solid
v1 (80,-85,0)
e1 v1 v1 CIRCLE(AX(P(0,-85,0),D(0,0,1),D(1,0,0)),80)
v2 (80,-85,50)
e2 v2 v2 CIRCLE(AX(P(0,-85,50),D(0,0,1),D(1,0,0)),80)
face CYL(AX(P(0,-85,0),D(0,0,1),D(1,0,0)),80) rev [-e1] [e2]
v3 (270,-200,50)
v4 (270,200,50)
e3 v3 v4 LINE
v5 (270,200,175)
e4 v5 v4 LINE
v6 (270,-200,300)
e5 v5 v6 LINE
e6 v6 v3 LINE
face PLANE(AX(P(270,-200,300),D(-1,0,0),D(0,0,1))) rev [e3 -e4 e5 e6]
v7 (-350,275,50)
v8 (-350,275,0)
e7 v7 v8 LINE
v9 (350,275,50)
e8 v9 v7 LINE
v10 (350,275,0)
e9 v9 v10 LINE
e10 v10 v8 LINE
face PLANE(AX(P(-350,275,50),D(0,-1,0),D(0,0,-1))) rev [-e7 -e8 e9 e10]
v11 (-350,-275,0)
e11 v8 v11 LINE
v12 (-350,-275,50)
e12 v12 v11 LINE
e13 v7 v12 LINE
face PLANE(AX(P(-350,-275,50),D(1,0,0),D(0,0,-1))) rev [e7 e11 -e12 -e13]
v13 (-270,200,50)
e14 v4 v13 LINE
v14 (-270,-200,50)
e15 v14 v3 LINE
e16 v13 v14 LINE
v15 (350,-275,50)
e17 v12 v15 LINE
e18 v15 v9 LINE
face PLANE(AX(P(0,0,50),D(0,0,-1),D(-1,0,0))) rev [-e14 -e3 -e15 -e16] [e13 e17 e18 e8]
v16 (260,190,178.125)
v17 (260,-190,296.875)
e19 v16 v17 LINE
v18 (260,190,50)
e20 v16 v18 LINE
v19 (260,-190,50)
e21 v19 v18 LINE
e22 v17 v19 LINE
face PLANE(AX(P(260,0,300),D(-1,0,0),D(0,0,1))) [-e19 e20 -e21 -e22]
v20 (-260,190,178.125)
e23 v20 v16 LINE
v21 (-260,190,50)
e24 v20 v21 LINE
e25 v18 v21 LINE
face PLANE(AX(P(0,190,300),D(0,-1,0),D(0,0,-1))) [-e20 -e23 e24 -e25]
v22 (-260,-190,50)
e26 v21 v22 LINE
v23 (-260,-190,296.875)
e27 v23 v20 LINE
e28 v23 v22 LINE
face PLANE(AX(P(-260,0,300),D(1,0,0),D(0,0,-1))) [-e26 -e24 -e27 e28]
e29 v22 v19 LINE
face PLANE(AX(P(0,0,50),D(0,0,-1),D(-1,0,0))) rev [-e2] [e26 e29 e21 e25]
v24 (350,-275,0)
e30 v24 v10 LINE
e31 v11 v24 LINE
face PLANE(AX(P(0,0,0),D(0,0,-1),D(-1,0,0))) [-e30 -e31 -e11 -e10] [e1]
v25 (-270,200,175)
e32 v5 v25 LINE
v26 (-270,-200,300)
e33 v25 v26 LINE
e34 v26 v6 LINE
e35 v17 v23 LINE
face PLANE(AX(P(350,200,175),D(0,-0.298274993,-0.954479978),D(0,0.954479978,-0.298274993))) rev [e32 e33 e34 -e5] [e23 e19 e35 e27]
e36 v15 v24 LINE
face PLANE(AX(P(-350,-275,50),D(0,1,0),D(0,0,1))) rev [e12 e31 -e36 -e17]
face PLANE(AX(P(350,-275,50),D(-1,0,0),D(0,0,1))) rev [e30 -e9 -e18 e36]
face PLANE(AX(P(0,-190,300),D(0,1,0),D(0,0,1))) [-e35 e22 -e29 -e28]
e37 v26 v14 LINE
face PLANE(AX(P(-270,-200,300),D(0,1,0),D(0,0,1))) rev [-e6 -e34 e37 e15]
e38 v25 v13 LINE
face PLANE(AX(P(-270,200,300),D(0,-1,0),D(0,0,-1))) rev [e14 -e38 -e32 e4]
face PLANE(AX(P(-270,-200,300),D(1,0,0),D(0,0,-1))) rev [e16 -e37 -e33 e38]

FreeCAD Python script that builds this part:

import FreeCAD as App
import Part
import Sketcher

V = App.Vector

doc = App.newDocument("Part")
body = doc.addObject("PartDesign::Body", "Body")

# Sketch on XY plane
sketch1 = body.newObject("Sketcher::SketchObject", "Sketch")
sketch1.AttachmentSupport = (doc.getObject("XY_Plane"), [""])
sketch1.MapMode = "FlatFace"
sketch1.addGeometry([
    Part.LineSegment(V(-350, 275, 0), V(-350, -275, 0)),
    Part.LineSegment(V(-350, -275, 0), V(350, -275, 0)),
    Part.LineSegment(V(350, -275, 0), V(350, 275, 0)),
    Part.LineSegment(V(350, 275, 0), V(-350, 275, 0)),
], False)
sketch1.addConstraint([
    Sketcher.Constraint("Coincident", 0, 2, 1, 1),
    Sketcher.Constraint("Coincident", 1, 2, 2, 1),
    Sketcher.Constraint("Coincident", 2, 2, 3, 1),
    Sketcher.Constraint("Coincident", 3, 2, 0, 1),
    Sketcher.Constraint("Vertical", 0),
    Sketcher.Constraint("Horizontal", 1),
    Sketcher.Constraint("Vertical", 2),
    Sketcher.Constraint("Horizontal", 3),
    Sketcher.Constraint("Symmetric", 0, 2, 2, 2, -1, 1),
    Sketcher.Constraint("DistanceX", 1, 1, 1, 2, 700.0),
    Sketcher.Constraint("DistanceY", 0, 2, 0, 1, 550.0),
])
pad1 = body.newObject("PartDesign::Pad", "Pad")
pad1.Profile = sketch1
pad1.Length = 50

# Sketch on XY plane
sketch2 = body.newObject("Sketcher::SketchObject", "Sketch001")
sketch2.AttachmentSupport = (doc.getObject("XY_Plane"), [""])
sketch2.MapMode = "FlatFace"
sketch2.AttachmentOffset = App.Placement(V(0, 0, 50), App.Rotation())
sketch2.addGeometry([
    Part.LineSegment(V(-270, 200, 0), V(-270, -200, 0)),  # 0
    Part.LineSegment(V(-270, -200, 0), V(270, -200, 0)),  # 1
    Part.LineSegment(V(270, -200, 0), V(270, 200, 0)),  # 2
    Part.LineSegment(V(270, 200, 0), V(-270, 200, 0)),  # 3
    Part.LineSegment(V(260, -190, 0), V(-260, -190, 0)),  # 4
    Part.LineSegment(V(-260, -190, 0), V(-260, 190, 0)),  # 5
    Part.LineSegment(V(-260, 190, 0), V(260, 190, 0)),  # 6
    Part.LineSegment(V(260, 190, 0), V(260, -190, 0)),  # 7
], False)
sketch2.addConstraint([
    Sketcher.Constraint("Coincident", 0, 2, 1, 1),
    Sketcher.Constraint("Coincident", 1, 2, 2, 1),
    Sketcher.Constraint("Coincident", 2, 2, 3, 1),
    Sketcher.Constraint("Coincident", 3, 2, 0, 1),
    Sketcher.Constraint("Coincident", 4, 2, 5, 1),
    Sketcher.Constraint("Coincident", 5, 2, 6, 1),
    Sketcher.Constraint("Coincident", 6, 2, 7, 1),
    Sketcher.Constraint("Coincident", 7, 2, 4, 1),
    Sketcher.Constraint("Vertical", 0),
    Sketcher.Constraint("Horizontal", 1),
    Sketcher.Constraint("Vertical", 2),
    Sketcher.Constraint("Horizontal", 3),
    Sketcher.Constraint("Horizontal", 4),
    Sketcher.Constraint("Vertical", 5),
    Sketcher.Constraint("Horizontal", 6),
    Sketcher.Constraint("Vertical", 7),
    Sketcher.Constraint("Symmetric", 0, 2, 2, 2, -1, 1),
    Sketcher.Constraint("Symmetric", 4, 2, 6, 2, -1, 1),
    Sketcher.Constraint("DistanceX", 1, 1, 1, 2, 540.0),
    Sketcher.Constraint("DistanceX", 4, 2, 4, 1, 520.0),
    Sketcher.Constraint("DistanceY", 0, 2, 0, 1, 400.0),
    Sketcher.Constraint("DistanceY", 5, 1, 5, 2, 380.0),
])
pad2 = body.newObject("PartDesign::Pad", "Pad001")
pad2.Profile = sketch2
pad2.Length = 250

# Sketch on YZ plane
sketch3 = body.newObject("Sketcher::SketchObject", "Sketch002")
sketch3.AttachmentSupport = (doc.getObject("YZ_Plane"), [""])
sketch3.MapMode = "FlatFace"
sketch3.AttachmentOffset = App.Placement(V(0, 0, -270), App.Rotation())
sketch3.addGeometry([
    Part.LineSegment(V(200, 175, 0), V(-200, 300, 0)),
    Part.LineSegment(V(-200, 300, 0), V(200, 300, 0)),
    Part.LineSegment(V(200, 300, 0), V(200, 175, 0)),
], False)
sketch3.addConstraint([
    Sketcher.Constraint("Coincident", 0, 2, 1, 1),
    Sketcher.Constraint("Coincident", 1, 2, 2, 1),
    Sketcher.Constraint("Coincident", 2, 2, 0, 1),
    Sketcher.Constraint("Horizontal", 1),
    Sketcher.Constraint("Vertical", 2),
    Sketcher.Constraint("DistanceX", 1, 1, 1, 2, 400.0),
    Sketcher.Constraint("DistanceY", 2, 2, 2, 1, 125.0),
    Sketcher.Constraint("DistanceX", 0, 2, -1, 1, 200.0),
    Sketcher.Constraint("DistanceY", -1, 1, 0, 2, 300.0),
])
pocket1 = body.newObject("PartDesign::Pocket", "Pocket")
pocket1.Profile = sketch3
pocket1.Type = "ThroughAll"
pocket1.Reversed = True

# Sketch on XY plane
sketch4 = body.newObject("Sketcher::SketchObject", "Sketch003")
sketch4.AttachmentSupport = (doc.getObject("XY_Plane"), [""])
sketch4.MapMode = "FlatFace"
sketch4.AttachmentOffset = App.Placement(V(0, 0, 50), App.Rotation())
sketch4.addGeometry(Part.Circle(V(0, -85, 0), V(0, 0, 1), 80), False)
sketch4.addConstraint([
    Sketcher.Constraint("PointOnObject", 0, 3, -2),
    Sketcher.Constraint("Diameter", 0, 160.0),
    Sketcher.Constraint("DistanceY", 0, 3, -1, 1, 85.0),
])
pocket2 = body.newObject("PartDesign::Pocket", "Pocket001")
pocket2.Profile = sketch4
pocket2.Type = "ThroughAll"

doc.recompute()
